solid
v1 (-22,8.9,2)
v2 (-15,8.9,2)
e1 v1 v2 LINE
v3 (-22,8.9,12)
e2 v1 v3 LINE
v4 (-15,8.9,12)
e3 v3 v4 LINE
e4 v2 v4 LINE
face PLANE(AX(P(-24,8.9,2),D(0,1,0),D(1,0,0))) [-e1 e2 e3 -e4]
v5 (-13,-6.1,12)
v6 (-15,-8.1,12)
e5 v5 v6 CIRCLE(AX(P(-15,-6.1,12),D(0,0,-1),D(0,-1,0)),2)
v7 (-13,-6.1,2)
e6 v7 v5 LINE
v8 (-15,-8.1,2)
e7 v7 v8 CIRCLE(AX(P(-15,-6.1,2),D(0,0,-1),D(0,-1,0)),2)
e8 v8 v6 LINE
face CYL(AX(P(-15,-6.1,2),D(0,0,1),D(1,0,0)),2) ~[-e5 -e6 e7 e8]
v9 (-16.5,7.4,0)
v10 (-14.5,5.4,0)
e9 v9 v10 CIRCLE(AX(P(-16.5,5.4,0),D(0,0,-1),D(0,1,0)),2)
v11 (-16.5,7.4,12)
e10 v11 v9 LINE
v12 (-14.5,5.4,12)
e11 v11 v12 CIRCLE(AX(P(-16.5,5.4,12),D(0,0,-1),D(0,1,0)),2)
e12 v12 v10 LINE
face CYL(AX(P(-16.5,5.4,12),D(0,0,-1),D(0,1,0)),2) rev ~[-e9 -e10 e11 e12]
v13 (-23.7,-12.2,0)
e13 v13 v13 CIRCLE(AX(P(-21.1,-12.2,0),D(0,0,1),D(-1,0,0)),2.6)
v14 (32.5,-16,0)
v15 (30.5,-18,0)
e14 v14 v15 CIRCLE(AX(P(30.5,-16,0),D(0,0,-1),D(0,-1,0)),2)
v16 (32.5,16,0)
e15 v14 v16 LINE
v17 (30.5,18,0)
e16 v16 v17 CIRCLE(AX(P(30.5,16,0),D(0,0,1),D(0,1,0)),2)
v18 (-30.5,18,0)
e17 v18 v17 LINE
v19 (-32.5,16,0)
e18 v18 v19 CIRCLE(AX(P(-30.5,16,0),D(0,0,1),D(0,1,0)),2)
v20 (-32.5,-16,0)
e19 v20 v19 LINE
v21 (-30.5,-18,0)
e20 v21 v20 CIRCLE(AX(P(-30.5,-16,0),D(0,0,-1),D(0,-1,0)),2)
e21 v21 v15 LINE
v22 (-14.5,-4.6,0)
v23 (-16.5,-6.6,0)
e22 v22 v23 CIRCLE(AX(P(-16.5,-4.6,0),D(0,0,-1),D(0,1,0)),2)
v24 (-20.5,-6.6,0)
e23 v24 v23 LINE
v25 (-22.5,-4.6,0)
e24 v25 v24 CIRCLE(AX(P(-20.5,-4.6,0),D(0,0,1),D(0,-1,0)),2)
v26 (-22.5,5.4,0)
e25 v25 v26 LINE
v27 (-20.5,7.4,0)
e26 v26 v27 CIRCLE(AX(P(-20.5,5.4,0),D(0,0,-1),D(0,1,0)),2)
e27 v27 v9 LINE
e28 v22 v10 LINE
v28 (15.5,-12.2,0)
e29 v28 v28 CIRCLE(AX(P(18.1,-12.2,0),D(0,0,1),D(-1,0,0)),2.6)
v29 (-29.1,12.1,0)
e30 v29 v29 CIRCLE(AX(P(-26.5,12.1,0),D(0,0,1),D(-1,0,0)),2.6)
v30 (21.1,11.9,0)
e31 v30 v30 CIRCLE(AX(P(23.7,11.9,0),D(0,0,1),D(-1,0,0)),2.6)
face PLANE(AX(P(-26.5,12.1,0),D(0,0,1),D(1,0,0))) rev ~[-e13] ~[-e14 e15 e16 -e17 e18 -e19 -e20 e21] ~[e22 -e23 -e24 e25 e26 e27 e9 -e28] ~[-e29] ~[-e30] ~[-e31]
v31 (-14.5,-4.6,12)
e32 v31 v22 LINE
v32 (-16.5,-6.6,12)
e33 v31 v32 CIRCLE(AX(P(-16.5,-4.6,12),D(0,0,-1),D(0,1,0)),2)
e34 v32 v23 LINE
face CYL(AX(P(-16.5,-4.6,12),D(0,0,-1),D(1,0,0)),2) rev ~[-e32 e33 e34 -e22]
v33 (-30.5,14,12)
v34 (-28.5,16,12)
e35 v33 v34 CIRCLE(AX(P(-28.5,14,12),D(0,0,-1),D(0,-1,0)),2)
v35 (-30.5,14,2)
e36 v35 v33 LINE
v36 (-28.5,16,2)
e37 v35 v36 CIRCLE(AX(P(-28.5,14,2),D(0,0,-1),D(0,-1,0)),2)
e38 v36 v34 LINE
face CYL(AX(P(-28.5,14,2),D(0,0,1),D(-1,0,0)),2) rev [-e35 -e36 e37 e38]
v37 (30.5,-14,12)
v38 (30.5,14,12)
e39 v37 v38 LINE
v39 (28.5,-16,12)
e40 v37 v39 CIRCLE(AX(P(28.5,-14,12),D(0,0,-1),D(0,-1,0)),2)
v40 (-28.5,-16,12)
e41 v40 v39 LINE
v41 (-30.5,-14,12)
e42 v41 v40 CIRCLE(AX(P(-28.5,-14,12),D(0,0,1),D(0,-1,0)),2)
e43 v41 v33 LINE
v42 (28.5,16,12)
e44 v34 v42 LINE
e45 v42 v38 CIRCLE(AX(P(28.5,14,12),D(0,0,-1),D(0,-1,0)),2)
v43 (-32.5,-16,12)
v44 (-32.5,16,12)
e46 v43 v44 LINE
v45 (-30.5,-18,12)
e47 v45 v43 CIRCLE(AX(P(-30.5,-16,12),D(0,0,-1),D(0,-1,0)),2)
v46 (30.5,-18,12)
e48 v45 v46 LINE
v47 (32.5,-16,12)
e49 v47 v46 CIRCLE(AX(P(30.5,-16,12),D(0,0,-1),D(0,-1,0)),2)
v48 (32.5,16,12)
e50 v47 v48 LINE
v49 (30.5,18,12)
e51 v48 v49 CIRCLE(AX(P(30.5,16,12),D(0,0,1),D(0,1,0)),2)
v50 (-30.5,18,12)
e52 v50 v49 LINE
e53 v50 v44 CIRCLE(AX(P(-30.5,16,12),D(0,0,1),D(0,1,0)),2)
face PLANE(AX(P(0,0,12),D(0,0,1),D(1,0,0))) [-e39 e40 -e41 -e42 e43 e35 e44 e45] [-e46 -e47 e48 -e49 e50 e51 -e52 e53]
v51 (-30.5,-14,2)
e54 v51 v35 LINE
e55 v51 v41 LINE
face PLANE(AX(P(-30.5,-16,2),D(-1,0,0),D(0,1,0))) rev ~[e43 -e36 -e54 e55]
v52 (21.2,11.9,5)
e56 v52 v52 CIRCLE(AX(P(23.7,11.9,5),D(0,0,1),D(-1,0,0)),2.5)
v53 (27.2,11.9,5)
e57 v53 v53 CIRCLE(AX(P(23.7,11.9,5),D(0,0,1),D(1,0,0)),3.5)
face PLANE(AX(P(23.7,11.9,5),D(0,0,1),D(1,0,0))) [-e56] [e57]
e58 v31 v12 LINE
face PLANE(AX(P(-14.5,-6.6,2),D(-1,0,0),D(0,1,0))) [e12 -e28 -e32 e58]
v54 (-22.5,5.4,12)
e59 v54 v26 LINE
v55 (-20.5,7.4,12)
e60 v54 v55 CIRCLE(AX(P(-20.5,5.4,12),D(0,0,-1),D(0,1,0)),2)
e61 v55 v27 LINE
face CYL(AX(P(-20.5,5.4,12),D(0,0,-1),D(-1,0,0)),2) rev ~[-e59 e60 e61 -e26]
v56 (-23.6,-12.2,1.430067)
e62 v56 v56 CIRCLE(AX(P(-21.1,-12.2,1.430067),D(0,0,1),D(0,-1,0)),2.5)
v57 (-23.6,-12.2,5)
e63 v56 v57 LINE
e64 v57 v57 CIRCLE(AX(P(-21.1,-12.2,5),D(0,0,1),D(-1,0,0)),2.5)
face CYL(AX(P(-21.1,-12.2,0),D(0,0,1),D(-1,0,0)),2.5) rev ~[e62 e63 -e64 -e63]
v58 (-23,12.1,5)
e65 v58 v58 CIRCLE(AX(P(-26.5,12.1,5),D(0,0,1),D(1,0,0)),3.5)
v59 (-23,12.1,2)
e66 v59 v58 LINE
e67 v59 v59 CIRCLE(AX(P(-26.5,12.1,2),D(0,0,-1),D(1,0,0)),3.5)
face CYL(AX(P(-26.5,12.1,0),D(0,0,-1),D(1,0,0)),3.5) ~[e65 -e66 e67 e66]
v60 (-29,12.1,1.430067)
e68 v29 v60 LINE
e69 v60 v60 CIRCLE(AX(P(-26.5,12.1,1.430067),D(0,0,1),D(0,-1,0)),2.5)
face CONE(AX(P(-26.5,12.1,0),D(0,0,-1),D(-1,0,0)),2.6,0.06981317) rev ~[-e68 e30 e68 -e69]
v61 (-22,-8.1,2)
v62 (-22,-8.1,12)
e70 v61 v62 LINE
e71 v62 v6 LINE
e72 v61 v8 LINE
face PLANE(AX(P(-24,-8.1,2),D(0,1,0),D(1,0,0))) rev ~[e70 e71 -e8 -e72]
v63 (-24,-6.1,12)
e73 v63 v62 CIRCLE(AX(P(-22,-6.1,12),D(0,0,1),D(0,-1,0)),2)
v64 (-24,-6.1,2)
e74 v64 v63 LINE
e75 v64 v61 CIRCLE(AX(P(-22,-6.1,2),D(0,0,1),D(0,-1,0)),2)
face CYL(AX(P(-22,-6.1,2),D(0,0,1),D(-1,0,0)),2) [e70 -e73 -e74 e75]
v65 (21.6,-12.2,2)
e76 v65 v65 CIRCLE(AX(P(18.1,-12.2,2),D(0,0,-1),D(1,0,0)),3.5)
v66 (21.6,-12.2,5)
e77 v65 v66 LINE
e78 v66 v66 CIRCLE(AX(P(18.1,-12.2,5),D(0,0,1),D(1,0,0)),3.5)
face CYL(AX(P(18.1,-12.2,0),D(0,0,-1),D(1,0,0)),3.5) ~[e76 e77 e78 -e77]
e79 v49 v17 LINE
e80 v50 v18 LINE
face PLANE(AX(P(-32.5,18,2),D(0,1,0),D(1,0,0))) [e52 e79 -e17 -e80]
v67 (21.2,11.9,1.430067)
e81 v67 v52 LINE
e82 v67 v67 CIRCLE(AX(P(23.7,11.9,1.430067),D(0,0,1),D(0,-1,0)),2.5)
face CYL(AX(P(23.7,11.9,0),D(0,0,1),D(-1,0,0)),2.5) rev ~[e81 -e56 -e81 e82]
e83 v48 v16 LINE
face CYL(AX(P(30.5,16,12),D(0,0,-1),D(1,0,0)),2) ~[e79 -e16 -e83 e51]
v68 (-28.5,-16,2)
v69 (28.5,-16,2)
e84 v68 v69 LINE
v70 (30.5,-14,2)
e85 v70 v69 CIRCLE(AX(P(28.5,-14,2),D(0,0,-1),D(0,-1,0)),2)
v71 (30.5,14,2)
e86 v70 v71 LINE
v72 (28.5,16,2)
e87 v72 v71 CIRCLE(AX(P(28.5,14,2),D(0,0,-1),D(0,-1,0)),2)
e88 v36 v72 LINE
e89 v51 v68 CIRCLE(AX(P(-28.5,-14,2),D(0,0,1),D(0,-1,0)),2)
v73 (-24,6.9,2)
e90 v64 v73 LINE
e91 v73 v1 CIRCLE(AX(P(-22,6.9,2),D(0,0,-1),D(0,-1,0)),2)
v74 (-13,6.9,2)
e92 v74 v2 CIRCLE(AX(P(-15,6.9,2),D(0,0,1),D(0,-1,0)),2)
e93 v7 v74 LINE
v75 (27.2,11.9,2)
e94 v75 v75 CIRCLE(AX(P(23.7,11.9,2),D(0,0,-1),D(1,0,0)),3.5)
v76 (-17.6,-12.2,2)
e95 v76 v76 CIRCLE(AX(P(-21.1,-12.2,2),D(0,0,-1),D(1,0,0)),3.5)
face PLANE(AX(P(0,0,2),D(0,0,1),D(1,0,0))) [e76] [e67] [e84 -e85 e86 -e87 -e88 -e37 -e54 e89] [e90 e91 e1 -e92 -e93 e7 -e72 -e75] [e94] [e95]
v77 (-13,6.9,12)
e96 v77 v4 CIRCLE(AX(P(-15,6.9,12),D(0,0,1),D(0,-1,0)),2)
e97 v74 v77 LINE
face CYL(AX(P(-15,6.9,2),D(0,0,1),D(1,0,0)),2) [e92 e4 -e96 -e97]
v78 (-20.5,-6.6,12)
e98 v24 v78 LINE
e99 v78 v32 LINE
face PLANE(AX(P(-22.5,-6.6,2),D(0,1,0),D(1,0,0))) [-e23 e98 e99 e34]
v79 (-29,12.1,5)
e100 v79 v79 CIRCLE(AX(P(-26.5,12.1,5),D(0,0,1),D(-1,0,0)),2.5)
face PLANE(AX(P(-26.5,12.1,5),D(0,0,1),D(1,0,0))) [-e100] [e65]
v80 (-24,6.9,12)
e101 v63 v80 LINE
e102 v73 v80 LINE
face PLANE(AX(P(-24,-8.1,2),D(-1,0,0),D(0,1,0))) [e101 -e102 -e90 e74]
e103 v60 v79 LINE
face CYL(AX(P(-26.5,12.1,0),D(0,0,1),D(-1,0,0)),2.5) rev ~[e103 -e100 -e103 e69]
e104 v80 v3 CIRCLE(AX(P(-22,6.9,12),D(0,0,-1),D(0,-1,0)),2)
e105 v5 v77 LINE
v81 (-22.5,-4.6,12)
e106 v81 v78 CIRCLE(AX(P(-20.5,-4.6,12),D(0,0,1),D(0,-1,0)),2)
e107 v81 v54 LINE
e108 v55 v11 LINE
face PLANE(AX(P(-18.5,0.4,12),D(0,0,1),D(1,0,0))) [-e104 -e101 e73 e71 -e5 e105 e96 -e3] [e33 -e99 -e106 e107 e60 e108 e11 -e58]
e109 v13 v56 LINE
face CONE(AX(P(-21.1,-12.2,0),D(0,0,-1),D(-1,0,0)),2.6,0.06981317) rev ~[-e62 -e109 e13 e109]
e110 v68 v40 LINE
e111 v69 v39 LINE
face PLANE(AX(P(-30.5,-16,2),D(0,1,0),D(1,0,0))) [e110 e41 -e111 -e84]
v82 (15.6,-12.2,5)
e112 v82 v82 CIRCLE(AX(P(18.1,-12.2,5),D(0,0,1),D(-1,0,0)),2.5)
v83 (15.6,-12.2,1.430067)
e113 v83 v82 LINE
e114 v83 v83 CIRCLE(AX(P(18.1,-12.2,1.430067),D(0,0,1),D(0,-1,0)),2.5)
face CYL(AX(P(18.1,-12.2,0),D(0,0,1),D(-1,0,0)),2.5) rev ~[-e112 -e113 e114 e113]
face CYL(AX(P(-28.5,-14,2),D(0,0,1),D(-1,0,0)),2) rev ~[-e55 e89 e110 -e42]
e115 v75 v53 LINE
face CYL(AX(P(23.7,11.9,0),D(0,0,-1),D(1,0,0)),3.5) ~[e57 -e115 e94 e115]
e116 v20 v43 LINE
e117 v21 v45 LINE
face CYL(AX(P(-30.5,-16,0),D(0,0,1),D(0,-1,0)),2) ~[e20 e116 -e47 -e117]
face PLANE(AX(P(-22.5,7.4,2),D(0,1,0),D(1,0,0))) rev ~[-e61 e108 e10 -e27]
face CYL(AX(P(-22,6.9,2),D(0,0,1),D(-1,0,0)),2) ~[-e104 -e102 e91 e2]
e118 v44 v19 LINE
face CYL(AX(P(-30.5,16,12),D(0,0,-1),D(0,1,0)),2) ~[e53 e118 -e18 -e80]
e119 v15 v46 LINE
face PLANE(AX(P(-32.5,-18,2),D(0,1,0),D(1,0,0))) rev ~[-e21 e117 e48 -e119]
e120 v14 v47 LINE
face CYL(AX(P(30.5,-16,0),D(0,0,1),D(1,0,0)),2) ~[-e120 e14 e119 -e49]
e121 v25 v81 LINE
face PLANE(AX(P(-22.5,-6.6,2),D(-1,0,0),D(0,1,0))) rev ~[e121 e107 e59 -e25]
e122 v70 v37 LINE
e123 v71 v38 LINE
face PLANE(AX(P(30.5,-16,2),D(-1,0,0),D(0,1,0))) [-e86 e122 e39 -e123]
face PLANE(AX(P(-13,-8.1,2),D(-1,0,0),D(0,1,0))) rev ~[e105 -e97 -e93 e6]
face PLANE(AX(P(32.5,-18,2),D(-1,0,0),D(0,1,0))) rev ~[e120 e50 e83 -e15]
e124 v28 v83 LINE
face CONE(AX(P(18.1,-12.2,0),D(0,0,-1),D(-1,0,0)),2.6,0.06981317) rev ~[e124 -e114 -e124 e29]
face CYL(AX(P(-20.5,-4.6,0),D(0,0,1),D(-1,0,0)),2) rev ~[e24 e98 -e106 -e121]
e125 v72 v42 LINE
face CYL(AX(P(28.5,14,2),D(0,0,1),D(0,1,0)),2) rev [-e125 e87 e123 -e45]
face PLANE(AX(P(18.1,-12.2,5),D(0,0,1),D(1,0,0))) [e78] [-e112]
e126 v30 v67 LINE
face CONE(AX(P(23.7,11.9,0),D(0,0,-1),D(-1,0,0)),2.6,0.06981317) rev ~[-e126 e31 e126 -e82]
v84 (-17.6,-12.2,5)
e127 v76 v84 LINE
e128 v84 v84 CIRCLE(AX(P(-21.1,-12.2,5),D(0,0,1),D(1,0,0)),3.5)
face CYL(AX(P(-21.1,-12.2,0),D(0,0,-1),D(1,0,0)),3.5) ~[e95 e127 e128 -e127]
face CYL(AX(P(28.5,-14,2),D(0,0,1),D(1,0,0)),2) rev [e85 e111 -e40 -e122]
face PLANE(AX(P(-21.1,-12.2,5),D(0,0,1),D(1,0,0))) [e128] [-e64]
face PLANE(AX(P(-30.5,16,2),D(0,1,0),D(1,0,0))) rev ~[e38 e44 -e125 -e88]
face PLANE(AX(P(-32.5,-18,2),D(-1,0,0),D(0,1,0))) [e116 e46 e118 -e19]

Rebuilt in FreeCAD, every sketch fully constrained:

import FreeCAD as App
import Part
import Sketcher
from FreeCAD import Vector
Q = App.Units.Quantity


def edges_at(feature, points):
    """Names of the edges that pass closest to the given points."""
    edges = feature.Shape.Edges
    near = lambda p: min(range(len(edges)), key=lambda i: edges[i].distToShape(Part.Vertex(*p))[0])
    return sorted({f"Edge{near(p) + 1}" for p in points})

doc = App.newDocument("Part")
body = doc.addObject("PartDesign::Body", "Body")

sketch1 = body.newObject("Sketcher::SketchObject", "Sketch")
sketch1.AttachmentSupport = (doc.getObject("XY_Plane"), [""])
sketch1.MapMode = "FlatFace"
sketch1.addGeometry([
    Part.LineSegment(Vector(-32, 18, 0), Vector(-32, -18, 0)),
    Part.LineSegment(Vector(-32, -18, 0), Vector(32, -18, 0)),
    Part.LineSegment(Vector(32, -18, 0), Vector(32, 18, 0)),
    Part.LineSegment(Vector(32, 18, 0), Vector(-32, 18, 0)),
], False)
sketch1.addConstraint([
    Sketcher.Constraint("Coincident", 0, 2, 1, 1),
    Sketcher.Constraint("Coincident", 1, 2, 2, 1),
    Sketcher.Constraint("Coincident", 2, 2, 3, 1),
    Sketcher.Constraint("Coincident", 3, 2, 0, 1),
    Sketcher.Constraint("Vertical", 0),
    Sketcher.Constraint("Horizontal", 1),
    Sketcher.Constraint("Vertical", 2),
    Sketcher.Constraint("Horizontal", 3),
    Sketcher.Constraint("Symmetric", 0, 2, 2, 2, -1, 1),
    Sketcher.Constraint("DistanceX", 1, 1, 1, 2, Q("65 mm")),
    Sketcher.Constraint("DistanceY", 0, 2, 0, 1, Q("36 mm")),
])
pad1 = body.newObject("PartDesign::Pad", "Pad")
pad1.Profile = sketch1
pad1.Length = 2

sketch2 = body.newObject("Sketcher::SketchObject", "Sketch001")
sketch2.AttachmentSupport = (doc.getObject("XY_Plane"), [""])
sketch2.MapMode = "FlatFace"
sketch2.AttachmentOffset = App.Placement(Vector(0, 0, 2), App.Rotation())
sketch2.addGeometry([
    Part.LineSegment(Vector(-32, 18, 0), Vector(-32, -18, 0)),
    Part.LineSegment(Vector(-32, -18, 0), Vector(32, -18, 0)),
    Part.LineSegment(Vector(32, -18, 0), Vector(32, 18, 0)),
    Part.LineSegment(Vector(32, 18, 0), Vector(-32, 18, 0)),
    Part.LineSegment(Vector(30, -16, 0), Vector(-30, -16, 0)),
    Part.LineSegment(Vector(-30, -16, 0), Vector(-30, 16, 0)),
    Part.LineSegment(Vector(-30, 16, 0), Vector(30, 16, 0)),
    Part.LineSegment(Vector(30, 16, 0), Vector(30, -16, 0)),
], False)
sketch2.addConstraint([
    Sketcher.Constraint("Coincident", 0, 2, 1, 1),
    Sketcher.Constraint("Coincident", 1, 2, 2, 1),
    Sketcher.Constraint("Coincident", 2, 2, 3, 1),
    Sketcher.Constraint("Coincident", 3, 2, 0, 1),
    Sketcher.Constraint("Coincident", 4, 2, 5, 1),
    Sketcher.Constraint("Coincident", 5, 2, 6, 1),
    Sketcher.Constraint("Coincident", 6, 2, 7, 1),
    Sketcher.Constraint("Coincident", 7, 2, 4, 1),
    Sketcher.Constraint("Vertical", 0),
    Sketcher.Constraint("Horizontal", 1),
    Sketcher.Constraint("Vertical", 2),
    Sketcher.Constraint("Horizontal", 3),
    Sketcher.Constraint("Horizontal", 4),
    Sketcher.Constraint("Vertical", 5),
    Sketcher.Constraint("Horizontal", 6),
    Sketcher.Constraint("Vertical", 7),
    Sketcher.Constraint("Symmetric", 0, 2, 2, 2, -1, 1),
    Sketcher.Constraint("Symmetric", 4, 2, 6, 2, -1, 1),
    Sketcher.Constraint("DistanceX", 1, 1, 1, 2, Q("65 mm")),
    Sketcher.Constraint("DistanceX", 4, 2, 4, 1, Q("61 mm")),
    Sketcher.Constraint("DistanceY", 0, 2, 0, 1, Q("36 mm")),
    Sketcher.Constraint("DistanceY", 5, 1, 5, 2, Q("32 mm")),
])
pad2 = body.newObject("PartDesign::Pad", "Pad001")
pad2.Profile = sketch2
pad2.Length = 10

sketch3 = body.newObject("Sketcher::SketchObject", "Sketch002")
sketch3.AttachmentSupport = (doc.getObject("XY_Plane"), [""])
sketch3.MapMode = "FlatFace"
sketch3.addGeometry([
    Part.Circle(Vector(-26.5, 12.1, 0), Vector(0, 0, 1), 3.5),
    Part.Circle(Vector(-21.1, -12.2, 0), Vector(0, 0, 1), 3.5),
    Part.Circle(Vector(23.7, 11.9, 0), Vector(0, 0, 1), 3.5),
    Part.Circle(Vector(18.1, -12.2, 0), Vector(0, 0, 1), 3.5),
], False)
sketch3.addConstraint([
    Sketcher.Constraint("Equal", 0, 1),
    Sketcher.Constraint("Equal", 1, 2),
    Sketcher.Constraint("Equal", 2, 3),
    Sketcher.Constraint("Horizontal", 1, 3, 3, 3),
    Sketcher.Constraint("Diameter", 0, Q("7 mm")),
    Sketcher.Constraint("DistanceX", 0, 3, -1, 1, Q("26.5 mm")),
    Sketcher.Constraint("DistanceY", -1, 1, 0, 3, Q("12.1 mm")),
    Sketcher.Constraint("DistanceX", 1, 3, -1, 1, Q("21.1 mm")),
    Sketcher.Constraint("DistanceY", 1, 3, -1, 1, Q("12.2 mm")),
    Sketcher.Constraint("DistanceX", -1, 1, 2, 3, Q("23.7 mm")),
    Sketcher.Constraint("DistanceY", -1, 1, 2, 3, Q("11.9 mm")),
    Sketcher.Constraint("DistanceX", -1, 1, 3, 3, Q("18.1 mm")),
])
pad3 = body.newObject("PartDesign::Pad", "Pad002")
pad3.Profile = sketch3
pad3.Length = 5

sketch4 = body.newObject("Sketcher::SketchObject", "Sketch003")
sketch4.AttachmentSupport = (doc.getObject("XY_Plane"), [""])
sketch4.MapMode = "FlatFace"
sketch4.addGeometry([
    Part.Circle(Vector(-26.5, 12.1, 0), Vector(0, 0, 1), 2.5),
    Part.Circle(Vector(-21.1, -12.2, 0), Vector(0, 0, 1), 2.5),
    Part.Circle(Vector(23.7, 11.9, 0), Vector(0, 0, 1), 2.5),
    Part.Circle(Vector(18.1, -12.2, 0), Vector(0, 0, 1), 2.5),
], False)
sketch4.addConstraint([
    Sketcher.Constraint("Equal", 0, 1),
    Sketcher.Constraint("Equal", 1, 2),
    Sketcher.Constraint("Equal", 2, 3),
    Sketcher.Constraint("Horizontal", 1, 3, 3, 3),
    Sketcher.Constraint("Diameter", 0, Q("5 mm")),
    Sketcher.Constraint("DistanceX", 0, 3, -1, 1, Q("26.5 mm")),
    Sketcher.Constraint("DistanceY", -1, 1, 0, 3, Q("12.1 mm")),
    Sketcher.Constraint("DistanceX", 1, 3, -1, 1, Q("21.1 mm")),
    Sketcher.Constraint("DistanceY", 1, 3, -1, 1, Q("12.2 mm")),
    Sketcher.Constraint("DistanceX", -1, 1, 2, 3, Q("23.7 mm")),
    Sketcher.Constraint("DistanceY", -1, 1, 2, 3, Q("11.9 mm")),
    Sketcher.Constraint("DistanceX", -1, 1, 3, 3, Q("18.1 mm")),
])
doc.recompute()
hole = body.newObject("PartDesign::Hole", "Hole")
hole.Profile = sketch4
hole.ThreadType = "None"
hole.Diameter = 5
hole.DepthType = "ThroughAll"
hole.HoleCutType = "Countersink"
hole.HoleCutDiameter = 5.2
hole.HoleCutCountersinkAngle = 8
hole.Reversed = True

sketch5 = body.newObject("Sketcher::SketchObject", "Sketch004")
sketch5.AttachmentSupport = (doc.getObject("XY_Plane"), [""])
sketch5.MapMode = "FlatFace"
sketch5.addGeometry([
    Part.LineSegment(Vector(-22, 7, 0), Vector(-22, -7, 0)),
    Part.LineSegment(Vector(-22, -7, 0), Vector(-14, -7, 0)),
    Part.LineSegment(Vector(-14, -7, 0), Vector(-14, 7, 0)),
    Part.LineSegment(Vector(-14, 7, 0), Vector(-22, 7, 0)),
], False)
sketch5.addConstraint([
    Sketcher.Constraint("Coincident", 0, 2, 1, 1),
    Sketcher.Constraint("Coincident", 1, 2, 2, 1),
    Sketcher.Constraint("Coincident", 2, 2, 3, 1),
    Sketcher.Constraint("Coincident", 3, 2, 0, 1),
    Sketcher.Constraint("Vertical", 0),
    Sketcher.Constraint("Horizontal", 1),
    Sketcher.Constraint("Vertical", 2),
    Sketcher.Constraint("Horizontal", 3),
    Sketcher.Constraint("DistanceX", 1, 1, 1, 2, Q("8 mm")),
    Sketcher.Constraint("DistanceY", 0, 2, 0, 1, Q("14 mm")),
    Sketcher.Constraint("DistanceX", 0, 2, -1, 1, Q("22.5 mm")),
    Sketcher.Constraint("DistanceY", 0, 2, -1, 1, Q("6.6 mm")),
])
pocket1 = body.newObject("PartDesign::Pocket", "Pocket")
pocket1.Profile = sketch5
pocket1.Type = "ThroughAll"
pocket1.Reversed = True

sketch6 = body.newObject("Sketcher::SketchObject", "Sketch005")
sketch6.AttachmentSupport = (doc.getObject("XY_Plane"), [""])
sketch6.MapMode = "FlatFace"
sketch6.AttachmentOffset = App.Placement(Vector(0, 0, 2), App.Rotation())
sketch6.addGeometry([
    Part.LineSegment(Vector(-24, 9, 0), Vector(-24, -8, 0)),
    Part.LineSegment(Vector(-24, -8, 0), Vector(-13, -8, 0)),
    Part.LineSegment(Vector(-13, -8, 0), Vector(-13, 9, 0)),
    Part.LineSegment(Vector(-13, 9, 0), Vector(-24, 9, 0)),
    Part.LineSegment(Vector(-14, -7, 0), Vector(-22, -7, 0)),
    Part.LineSegment(Vector(-22, -7, 0), Vector(-22, 7, 0)),
    Part.LineSegment(Vector(-22, 7, 0), Vector(-14, 7, 0)),
    Part.LineSegment(Vector(-14, 7, 0), Vector(-14, -7, 0)),
], False)
sketch6.addConstraint([
    Sketcher.Constraint("Coincident", 0, 2, 1, 1),
    Sketcher.Constraint("Coincident", 1, 2, 2, 1),
    Sketcher.Constraint("Coincident", 2, 2, 3, 1),
    Sketcher.Constraint("Coincident", 3, 2, 0, 1),
    Sketcher.Constraint("Coincident", 4, 2, 5, 1),
    Sketcher.Constraint("Coincident", 5, 2, 6, 1),
    Sketcher.Constraint("Coincident", 6, 2, 7, 1),
    Sketcher.Constraint("Coincident", 7, 2, 4, 1),
    Sketcher.Constraint("Vertical", 0),
    Sketcher.Constraint("Horizontal", 1),
    Sketcher.Constraint("Vertical", 2),
    Sketcher.Constraint("Horizontal", 3),
    Sketcher.Constraint("Horizontal", 4),
    Sketcher.Constraint("Vertical", 5),
    Sketcher.Constraint("Horizontal", 6),
    Sketcher.Constraint("Vertical", 7),
    Sketcher.Constraint("DistanceX", 1, 1, 1, 2, Q("11 mm")),
    Sketcher.Constraint("DistanceX", 4, 2, 4, 1, Q("8 mm")),
    Sketcher.Constraint("DistanceY", 0, 2, 0, 1, Q("17 mm")),
    Sketcher.Constraint("DistanceY", 5, 1, 5, 2, Q("14 mm")),
    Sketcher.Constraint("DistanceX", 0, 2, -1, 1, Q("24 mm")),
    Sketcher.Constraint("DistanceY", 0, 2, -1, 1, Q("8.1 mm")),
    Sketcher.Constraint("DistanceX", 4, 2, -1, 1, Q("22.5 mm")),
    Sketcher.Constraint("DistanceY", 4, 2, -1, 1, Q("6.6 mm")),
])
pad4 = body.newObject("PartDesign::Pad", "Pad003")
pad4.Profile = sketch6
pad4.Length = 10
doc.recompute()

fillet = body.newObject("PartDesign::Fillet", "Fillet")
fillet.Base = (pad4, edges_at(pad4, [
    (-32.5, -18, 6),
    (-30.5, -16, 7),
    (-32.5, 18, 6),
    (-30.5, 16, 7),
    (32.5, -18, 6),
    (30.5, -16, 7),
    (30.5, 16, 7),
    (32.5, 18, 6),
    (-13, -8.1, 7),
    (-24, -8.1, 7),
    (-22.5, -6.6, 6),
    (-14.5, -6.6, 6),
    (-24, 8.9, 7),
    (-22.5, 7.4, 6),
    (-13, 8.9, 7),
    (-14.5, 7.4, 6),
]))
fillet.Radius = 2

doc.recompute()
